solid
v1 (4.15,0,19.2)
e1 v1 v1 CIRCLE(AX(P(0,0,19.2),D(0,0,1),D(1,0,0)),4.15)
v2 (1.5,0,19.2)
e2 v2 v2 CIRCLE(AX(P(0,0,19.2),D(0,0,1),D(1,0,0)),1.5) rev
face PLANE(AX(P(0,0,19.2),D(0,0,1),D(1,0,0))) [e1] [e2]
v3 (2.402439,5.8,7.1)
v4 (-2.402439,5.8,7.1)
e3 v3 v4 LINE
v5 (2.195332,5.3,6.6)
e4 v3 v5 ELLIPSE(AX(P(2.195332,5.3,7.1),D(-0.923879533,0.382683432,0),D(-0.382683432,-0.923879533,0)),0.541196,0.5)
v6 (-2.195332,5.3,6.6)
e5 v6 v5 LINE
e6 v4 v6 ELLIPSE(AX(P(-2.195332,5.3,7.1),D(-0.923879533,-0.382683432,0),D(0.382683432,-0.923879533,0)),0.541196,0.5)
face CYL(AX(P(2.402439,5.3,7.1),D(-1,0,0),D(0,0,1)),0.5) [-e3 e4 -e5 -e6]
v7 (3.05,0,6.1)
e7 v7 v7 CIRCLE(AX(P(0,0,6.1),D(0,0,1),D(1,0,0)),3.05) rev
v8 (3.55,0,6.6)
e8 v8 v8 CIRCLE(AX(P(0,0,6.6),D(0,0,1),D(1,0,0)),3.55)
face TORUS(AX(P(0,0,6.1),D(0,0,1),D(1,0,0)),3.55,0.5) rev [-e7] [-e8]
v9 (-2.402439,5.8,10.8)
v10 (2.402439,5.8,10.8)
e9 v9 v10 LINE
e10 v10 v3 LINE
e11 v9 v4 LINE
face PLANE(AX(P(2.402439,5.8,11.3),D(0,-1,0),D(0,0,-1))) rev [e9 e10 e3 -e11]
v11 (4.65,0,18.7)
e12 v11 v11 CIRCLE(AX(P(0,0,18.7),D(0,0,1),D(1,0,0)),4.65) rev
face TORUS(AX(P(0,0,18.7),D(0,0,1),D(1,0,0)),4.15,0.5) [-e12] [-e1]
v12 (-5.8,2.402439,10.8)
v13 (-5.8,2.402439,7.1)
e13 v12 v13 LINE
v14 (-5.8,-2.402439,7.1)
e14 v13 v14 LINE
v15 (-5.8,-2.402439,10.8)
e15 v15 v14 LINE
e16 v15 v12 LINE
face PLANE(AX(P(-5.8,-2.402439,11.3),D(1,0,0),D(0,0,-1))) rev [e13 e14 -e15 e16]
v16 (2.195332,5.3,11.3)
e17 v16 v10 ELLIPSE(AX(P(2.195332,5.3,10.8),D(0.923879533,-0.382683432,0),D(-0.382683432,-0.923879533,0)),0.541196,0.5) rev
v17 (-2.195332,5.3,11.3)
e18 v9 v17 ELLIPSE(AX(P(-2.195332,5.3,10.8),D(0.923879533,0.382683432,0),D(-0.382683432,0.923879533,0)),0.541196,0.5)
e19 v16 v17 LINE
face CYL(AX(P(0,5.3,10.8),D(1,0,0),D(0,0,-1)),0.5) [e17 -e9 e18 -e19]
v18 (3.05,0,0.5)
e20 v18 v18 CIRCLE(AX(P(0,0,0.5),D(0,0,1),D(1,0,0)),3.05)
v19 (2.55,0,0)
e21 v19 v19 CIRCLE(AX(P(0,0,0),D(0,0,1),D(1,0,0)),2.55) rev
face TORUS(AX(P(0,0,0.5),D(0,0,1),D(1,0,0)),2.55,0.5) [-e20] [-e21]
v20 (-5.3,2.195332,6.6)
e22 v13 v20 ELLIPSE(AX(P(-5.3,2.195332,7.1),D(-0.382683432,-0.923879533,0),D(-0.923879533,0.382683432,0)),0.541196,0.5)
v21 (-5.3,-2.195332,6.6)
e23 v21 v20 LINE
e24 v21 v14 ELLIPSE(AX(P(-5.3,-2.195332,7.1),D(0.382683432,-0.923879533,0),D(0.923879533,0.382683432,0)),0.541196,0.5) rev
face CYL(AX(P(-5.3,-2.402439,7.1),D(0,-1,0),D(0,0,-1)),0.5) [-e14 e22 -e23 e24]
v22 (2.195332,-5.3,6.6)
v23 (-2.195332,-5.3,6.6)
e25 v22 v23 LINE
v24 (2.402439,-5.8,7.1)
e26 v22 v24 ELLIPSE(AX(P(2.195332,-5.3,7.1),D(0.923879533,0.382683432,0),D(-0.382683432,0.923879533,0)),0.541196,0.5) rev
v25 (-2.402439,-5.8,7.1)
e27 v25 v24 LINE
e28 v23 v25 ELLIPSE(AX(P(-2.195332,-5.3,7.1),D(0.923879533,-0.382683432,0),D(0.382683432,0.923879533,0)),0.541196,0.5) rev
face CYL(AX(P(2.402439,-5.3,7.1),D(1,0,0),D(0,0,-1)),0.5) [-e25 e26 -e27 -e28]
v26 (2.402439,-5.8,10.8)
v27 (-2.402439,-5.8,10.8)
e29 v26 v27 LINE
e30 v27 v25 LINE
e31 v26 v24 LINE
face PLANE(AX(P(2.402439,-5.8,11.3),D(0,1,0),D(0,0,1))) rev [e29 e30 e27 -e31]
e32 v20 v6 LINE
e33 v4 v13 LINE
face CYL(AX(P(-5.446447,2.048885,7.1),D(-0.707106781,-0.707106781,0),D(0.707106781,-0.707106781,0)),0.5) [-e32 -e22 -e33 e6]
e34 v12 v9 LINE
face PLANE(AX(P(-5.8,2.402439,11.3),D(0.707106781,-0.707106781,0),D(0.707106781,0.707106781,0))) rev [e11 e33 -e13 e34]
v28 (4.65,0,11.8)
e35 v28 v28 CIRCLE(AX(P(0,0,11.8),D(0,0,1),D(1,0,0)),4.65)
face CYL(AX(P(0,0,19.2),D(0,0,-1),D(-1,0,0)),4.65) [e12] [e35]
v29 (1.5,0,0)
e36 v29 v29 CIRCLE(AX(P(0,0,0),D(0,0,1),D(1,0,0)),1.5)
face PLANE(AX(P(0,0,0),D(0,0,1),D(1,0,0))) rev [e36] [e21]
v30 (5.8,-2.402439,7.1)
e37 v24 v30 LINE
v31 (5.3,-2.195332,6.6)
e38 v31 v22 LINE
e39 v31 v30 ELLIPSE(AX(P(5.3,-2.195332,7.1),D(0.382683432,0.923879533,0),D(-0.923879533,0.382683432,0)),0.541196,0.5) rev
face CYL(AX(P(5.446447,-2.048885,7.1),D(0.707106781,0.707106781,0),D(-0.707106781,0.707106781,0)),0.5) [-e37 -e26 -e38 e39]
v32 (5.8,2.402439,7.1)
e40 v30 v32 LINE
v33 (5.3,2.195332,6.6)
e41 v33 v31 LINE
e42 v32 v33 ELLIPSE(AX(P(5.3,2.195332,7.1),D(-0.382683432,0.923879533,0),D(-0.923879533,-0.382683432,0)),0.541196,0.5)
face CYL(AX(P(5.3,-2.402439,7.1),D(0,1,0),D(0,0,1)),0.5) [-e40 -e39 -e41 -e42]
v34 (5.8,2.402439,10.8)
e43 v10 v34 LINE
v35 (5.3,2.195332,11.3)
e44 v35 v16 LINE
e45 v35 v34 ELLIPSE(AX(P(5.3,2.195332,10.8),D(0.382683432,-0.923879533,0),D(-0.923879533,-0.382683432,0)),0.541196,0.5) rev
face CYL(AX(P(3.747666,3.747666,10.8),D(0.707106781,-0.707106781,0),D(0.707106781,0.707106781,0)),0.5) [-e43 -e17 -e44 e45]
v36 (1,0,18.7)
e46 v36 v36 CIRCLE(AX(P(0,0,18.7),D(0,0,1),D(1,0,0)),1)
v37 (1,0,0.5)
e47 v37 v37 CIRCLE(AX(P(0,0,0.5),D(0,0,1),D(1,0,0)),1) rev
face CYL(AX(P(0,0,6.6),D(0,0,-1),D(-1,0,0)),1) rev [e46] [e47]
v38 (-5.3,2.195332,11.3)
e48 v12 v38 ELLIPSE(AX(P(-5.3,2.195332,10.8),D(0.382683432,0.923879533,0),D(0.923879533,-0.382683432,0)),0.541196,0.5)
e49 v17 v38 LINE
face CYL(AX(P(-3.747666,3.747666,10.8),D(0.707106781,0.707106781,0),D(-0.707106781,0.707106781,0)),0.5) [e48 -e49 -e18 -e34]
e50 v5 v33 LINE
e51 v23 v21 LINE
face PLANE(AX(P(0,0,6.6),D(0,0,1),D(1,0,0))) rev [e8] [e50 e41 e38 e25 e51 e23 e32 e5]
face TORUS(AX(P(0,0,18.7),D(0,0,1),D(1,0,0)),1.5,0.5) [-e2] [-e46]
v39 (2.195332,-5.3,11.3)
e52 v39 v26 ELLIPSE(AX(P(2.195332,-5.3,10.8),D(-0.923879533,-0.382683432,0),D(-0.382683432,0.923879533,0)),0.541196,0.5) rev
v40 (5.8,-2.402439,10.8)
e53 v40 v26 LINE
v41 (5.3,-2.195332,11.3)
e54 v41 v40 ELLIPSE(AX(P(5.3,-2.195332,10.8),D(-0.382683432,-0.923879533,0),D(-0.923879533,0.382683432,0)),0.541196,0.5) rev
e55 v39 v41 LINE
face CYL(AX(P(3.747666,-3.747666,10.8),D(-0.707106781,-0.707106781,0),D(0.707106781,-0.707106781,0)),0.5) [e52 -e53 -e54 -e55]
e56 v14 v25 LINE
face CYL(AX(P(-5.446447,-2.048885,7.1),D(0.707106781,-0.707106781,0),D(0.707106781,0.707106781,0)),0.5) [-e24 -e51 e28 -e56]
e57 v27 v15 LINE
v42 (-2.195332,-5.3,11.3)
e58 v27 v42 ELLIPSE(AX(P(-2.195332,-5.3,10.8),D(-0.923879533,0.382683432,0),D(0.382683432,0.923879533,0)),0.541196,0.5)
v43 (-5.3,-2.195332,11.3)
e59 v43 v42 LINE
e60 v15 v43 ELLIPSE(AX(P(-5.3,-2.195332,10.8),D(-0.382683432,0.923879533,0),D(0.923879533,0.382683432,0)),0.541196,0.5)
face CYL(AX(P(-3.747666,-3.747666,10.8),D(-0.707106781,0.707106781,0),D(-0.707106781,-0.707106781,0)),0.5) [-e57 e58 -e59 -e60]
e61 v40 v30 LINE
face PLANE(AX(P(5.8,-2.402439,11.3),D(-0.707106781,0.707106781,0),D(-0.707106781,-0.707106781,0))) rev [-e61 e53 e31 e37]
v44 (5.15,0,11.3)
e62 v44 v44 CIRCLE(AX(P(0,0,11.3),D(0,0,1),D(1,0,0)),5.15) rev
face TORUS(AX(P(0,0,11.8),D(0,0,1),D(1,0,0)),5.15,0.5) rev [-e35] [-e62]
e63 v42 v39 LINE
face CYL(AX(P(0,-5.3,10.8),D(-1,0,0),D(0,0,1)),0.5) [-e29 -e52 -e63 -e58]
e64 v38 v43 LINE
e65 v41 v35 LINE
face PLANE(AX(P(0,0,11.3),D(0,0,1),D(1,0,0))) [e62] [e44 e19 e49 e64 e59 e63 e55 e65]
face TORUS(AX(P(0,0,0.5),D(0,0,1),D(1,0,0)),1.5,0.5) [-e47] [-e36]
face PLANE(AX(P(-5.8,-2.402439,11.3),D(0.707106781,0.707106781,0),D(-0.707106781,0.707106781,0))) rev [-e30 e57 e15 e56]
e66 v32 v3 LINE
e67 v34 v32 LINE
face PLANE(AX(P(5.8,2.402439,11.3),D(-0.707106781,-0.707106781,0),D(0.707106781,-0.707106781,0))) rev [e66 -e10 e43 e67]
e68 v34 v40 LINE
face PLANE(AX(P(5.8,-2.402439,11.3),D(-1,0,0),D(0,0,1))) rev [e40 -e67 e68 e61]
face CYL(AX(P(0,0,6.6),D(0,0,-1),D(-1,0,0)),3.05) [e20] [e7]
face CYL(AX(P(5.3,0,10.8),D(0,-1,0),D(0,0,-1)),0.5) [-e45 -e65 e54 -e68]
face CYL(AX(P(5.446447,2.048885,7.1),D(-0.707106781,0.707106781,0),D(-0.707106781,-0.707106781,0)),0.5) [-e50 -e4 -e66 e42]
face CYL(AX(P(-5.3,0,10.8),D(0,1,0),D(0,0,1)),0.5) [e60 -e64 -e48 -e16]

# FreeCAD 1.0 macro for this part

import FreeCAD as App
import Part
import Sketcher

V = App.Vector


def edges_at(feature, points):
    """Names of the edges that pass closest to the given points."""
    edges = feature.Shape.Edges
    near = lambda p: min(range(len(edges)), key=lambda i: edges[i].distToShape(Part.Vertex(*p))[0])
    return sorted({f"Edge{near(p) + 1}" for p in points})


def add_polygon(sketch, points):
    """Adds a closed chain of lines whose ends are joined by coincident constraints."""
    first, n = sketch.GeometryCount, len(points)
    for a, b in zip(points, points[1:] + points[:1]):
        sketch.addGeometry(Part.LineSegment(App.Vector(*a, 0), App.Vector(*b, 0)), False)
    for i in range(n):
        sketch.addConstraint(Sketcher.Constraint("Coincident", first + i, 2, first + (i + 1) % n, 1))

doc = App.newDocument("Part")
body = doc.addObject("PartDesign::Body", "Body")

# Sketch on XY plane
sketch1 = body.newObject("Sketcher::SketchObject", "Sketch")
sketch1.AttachmentSupport = (doc.getObject("XY_Plane"), [""])
sketch1.MapMode = "FlatFace"
sketch1.addGeometry(Part.Circle(V(0, 0, 0), V(0, 0, 1), 3), False)
sketch1.addGeometry(Part.Circle(V(0, 0, 0), V(0, 0, 1), 1), False)
sketch1.addConstraint(Sketcher.Constraint("Coincident", 0, 3, -1, 1))
sketch1.addConstraint(Sketcher.Constraint("Coincident", 1, 3, -1, 1))
sketch1.addConstraint(Sketcher.Constraint("Diameter", 1, 2.0))
sketch1.addConstraint(Sketcher.Constraint("Diameter", 0, 6.1))
pad1 = body.newObject("PartDesign::Pad", "Pad")
pad1.Profile = sketch1
pad1.Length = 6.6

# Sketch on XY plane
sketch2 = body.newObject("Sketcher::SketchObject", "Sketch001")
sketch2.AttachmentSupport = (doc.getObject("XY_Plane"), [""])
sketch2.MapMode = "FlatFace"
sketch2.AttachmentOffset = App.Placement(V(0, 0, 6.6), App.Rotation())
add_polygon(sketch2, [(5.8, -2.4), (5.8, 2.4), (2.4, 5.8), (-2.4, 5.8), (-5.8, 2.4), (-5.8, -2.4), (-2.4, -5.8), (2.4, -5.8)])  # lines 0-7
sketch2.addGeometry(Part.Circle(V(0, 0, 0), V(0, 0, 1), 1), False)  # 8
sketch2.addConstraint(Sketcher.Constraint("Vertical", 0))
sketch2.addConstraint(Sketcher.Constraint("Horizontal", 2))
sketch2.addConstraint(Sketcher.Constraint("Vertical", 4))
sketch2.addConstraint(Sketcher.Constraint("Horizontal", 6))
sketch2.addConstraint(Sketcher.Constraint("Coincident", 8, 3, -1, 1))
sketch2.addConstraint(Sketcher.Constraint("Symmetric", 0, 2, 4, 2, -1, 1))
sketch2.addConstraint(Sketcher.Constraint("Symmetric", 1, 2, 5, 2, -1, 1))
sketch2.addConstraint(Sketcher.Constraint("Perpendicular", 1, 3))
sketch2.addConstraint(Sketcher.Constraint("Perpendicular", 5, 7))
sketch2.addConstraint(Sketcher.Constraint("Horizontal", 0, 2, 3, 2))
sketch2.addConstraint(Sketcher.Constraint("Horizontal", 4, 2, 7, 2))
sketch2.addConstraint(Sketcher.Constraint("Vertical", 2, 2, 5, 2))
sketch2.addConstraint(Sketcher.Constraint("Equal", 6, 0))
sketch2.addConstraint(Sketcher.Constraint("Diameter", 8, 2.0))
sketch2.addConstraint(Sketcher.Constraint("DistanceX", -1, 1, 0, 2, 5.8))
sketch2.addConstraint(Sketcher.Constraint("DistanceX", 2, 2, 2, 1, 4.804877))
pad2 = body.newObject("PartDesign::Pad", "Pad001")
pad2.Profile = sketch2
pad2.Length = 4.7

# Sketch on XY plane
sketch3 = body.newObject("Sketcher::SketchObject", "Sketch002")
sketch3.AttachmentSupport = (doc.getObject("XY_Plane"), [""])
sketch3.MapMode = "FlatFace"
sketch3.AttachmentOffset = App.Placement(V(0, 0, 11.3), App.Rotation())
sketch3.addGeometry(Part.Circle(V(0, 0, 0), V(0, 0, 1), 4.7), False)
sketch3.addGeometry(Part.Circle(V(0, 0, 0), V(0, 0, 1), 1), False)
sketch3.addConstraint(Sketcher.Constraint("Coincident", 0, 3, -1, 1))
sketch3.addConstraint(Sketcher.Constraint("Coincident", 1, 3, -1, 1))
sketch3.addConstraint(Sketcher.Constraint("Diameter", 1, 2.0))
sketch3.addConstraint(Sketcher.Constraint("Diameter", 0, 9.3))
pad3 = body.newObject("PartDesign::Pad", "Pad002")
pad3.Profile = sketch3
pad3.Length = 7.9
doc.recompute()

fillet = body.newObject("PartDesign::Fillet", "Fillet")
fillet.Base = (pad3, edges_at(pad3, [
    (-4.101, 4.101, 11.3),
    (-5.8, 0, 11.3),
    (-4.101, -4.101, 11.3),
    (0, -5.8, 11.3),
    (4.101, -4.101, 11.3),
    (5.8, 0, 11.3),
    (4.101, 4.101, 11.3),
    (0, 5.8, 11.3),
    (-4.101, 4.101, 6.6),
    (-5.8, 0, 6.6),
    (-4.101, -4.101, 6.6),
    (0, -5.8, 6.6),
    (4.101, -4.101, 6.6),
    (5.8, 0, 6.6),
    (4.101, 4.101, 6.6),
    (0, 5.8, 6.6),
    (-3.05, 0, 0),
    (-4.65, 0, 11.3),
    (-4.65, 0, 19.2),
    (-1, 0, 19.2),
    (-3.05, 0, 6.6),
    (-1, 0, 0),
]))
fillet.Radius = 0.5

doc.recompute()
